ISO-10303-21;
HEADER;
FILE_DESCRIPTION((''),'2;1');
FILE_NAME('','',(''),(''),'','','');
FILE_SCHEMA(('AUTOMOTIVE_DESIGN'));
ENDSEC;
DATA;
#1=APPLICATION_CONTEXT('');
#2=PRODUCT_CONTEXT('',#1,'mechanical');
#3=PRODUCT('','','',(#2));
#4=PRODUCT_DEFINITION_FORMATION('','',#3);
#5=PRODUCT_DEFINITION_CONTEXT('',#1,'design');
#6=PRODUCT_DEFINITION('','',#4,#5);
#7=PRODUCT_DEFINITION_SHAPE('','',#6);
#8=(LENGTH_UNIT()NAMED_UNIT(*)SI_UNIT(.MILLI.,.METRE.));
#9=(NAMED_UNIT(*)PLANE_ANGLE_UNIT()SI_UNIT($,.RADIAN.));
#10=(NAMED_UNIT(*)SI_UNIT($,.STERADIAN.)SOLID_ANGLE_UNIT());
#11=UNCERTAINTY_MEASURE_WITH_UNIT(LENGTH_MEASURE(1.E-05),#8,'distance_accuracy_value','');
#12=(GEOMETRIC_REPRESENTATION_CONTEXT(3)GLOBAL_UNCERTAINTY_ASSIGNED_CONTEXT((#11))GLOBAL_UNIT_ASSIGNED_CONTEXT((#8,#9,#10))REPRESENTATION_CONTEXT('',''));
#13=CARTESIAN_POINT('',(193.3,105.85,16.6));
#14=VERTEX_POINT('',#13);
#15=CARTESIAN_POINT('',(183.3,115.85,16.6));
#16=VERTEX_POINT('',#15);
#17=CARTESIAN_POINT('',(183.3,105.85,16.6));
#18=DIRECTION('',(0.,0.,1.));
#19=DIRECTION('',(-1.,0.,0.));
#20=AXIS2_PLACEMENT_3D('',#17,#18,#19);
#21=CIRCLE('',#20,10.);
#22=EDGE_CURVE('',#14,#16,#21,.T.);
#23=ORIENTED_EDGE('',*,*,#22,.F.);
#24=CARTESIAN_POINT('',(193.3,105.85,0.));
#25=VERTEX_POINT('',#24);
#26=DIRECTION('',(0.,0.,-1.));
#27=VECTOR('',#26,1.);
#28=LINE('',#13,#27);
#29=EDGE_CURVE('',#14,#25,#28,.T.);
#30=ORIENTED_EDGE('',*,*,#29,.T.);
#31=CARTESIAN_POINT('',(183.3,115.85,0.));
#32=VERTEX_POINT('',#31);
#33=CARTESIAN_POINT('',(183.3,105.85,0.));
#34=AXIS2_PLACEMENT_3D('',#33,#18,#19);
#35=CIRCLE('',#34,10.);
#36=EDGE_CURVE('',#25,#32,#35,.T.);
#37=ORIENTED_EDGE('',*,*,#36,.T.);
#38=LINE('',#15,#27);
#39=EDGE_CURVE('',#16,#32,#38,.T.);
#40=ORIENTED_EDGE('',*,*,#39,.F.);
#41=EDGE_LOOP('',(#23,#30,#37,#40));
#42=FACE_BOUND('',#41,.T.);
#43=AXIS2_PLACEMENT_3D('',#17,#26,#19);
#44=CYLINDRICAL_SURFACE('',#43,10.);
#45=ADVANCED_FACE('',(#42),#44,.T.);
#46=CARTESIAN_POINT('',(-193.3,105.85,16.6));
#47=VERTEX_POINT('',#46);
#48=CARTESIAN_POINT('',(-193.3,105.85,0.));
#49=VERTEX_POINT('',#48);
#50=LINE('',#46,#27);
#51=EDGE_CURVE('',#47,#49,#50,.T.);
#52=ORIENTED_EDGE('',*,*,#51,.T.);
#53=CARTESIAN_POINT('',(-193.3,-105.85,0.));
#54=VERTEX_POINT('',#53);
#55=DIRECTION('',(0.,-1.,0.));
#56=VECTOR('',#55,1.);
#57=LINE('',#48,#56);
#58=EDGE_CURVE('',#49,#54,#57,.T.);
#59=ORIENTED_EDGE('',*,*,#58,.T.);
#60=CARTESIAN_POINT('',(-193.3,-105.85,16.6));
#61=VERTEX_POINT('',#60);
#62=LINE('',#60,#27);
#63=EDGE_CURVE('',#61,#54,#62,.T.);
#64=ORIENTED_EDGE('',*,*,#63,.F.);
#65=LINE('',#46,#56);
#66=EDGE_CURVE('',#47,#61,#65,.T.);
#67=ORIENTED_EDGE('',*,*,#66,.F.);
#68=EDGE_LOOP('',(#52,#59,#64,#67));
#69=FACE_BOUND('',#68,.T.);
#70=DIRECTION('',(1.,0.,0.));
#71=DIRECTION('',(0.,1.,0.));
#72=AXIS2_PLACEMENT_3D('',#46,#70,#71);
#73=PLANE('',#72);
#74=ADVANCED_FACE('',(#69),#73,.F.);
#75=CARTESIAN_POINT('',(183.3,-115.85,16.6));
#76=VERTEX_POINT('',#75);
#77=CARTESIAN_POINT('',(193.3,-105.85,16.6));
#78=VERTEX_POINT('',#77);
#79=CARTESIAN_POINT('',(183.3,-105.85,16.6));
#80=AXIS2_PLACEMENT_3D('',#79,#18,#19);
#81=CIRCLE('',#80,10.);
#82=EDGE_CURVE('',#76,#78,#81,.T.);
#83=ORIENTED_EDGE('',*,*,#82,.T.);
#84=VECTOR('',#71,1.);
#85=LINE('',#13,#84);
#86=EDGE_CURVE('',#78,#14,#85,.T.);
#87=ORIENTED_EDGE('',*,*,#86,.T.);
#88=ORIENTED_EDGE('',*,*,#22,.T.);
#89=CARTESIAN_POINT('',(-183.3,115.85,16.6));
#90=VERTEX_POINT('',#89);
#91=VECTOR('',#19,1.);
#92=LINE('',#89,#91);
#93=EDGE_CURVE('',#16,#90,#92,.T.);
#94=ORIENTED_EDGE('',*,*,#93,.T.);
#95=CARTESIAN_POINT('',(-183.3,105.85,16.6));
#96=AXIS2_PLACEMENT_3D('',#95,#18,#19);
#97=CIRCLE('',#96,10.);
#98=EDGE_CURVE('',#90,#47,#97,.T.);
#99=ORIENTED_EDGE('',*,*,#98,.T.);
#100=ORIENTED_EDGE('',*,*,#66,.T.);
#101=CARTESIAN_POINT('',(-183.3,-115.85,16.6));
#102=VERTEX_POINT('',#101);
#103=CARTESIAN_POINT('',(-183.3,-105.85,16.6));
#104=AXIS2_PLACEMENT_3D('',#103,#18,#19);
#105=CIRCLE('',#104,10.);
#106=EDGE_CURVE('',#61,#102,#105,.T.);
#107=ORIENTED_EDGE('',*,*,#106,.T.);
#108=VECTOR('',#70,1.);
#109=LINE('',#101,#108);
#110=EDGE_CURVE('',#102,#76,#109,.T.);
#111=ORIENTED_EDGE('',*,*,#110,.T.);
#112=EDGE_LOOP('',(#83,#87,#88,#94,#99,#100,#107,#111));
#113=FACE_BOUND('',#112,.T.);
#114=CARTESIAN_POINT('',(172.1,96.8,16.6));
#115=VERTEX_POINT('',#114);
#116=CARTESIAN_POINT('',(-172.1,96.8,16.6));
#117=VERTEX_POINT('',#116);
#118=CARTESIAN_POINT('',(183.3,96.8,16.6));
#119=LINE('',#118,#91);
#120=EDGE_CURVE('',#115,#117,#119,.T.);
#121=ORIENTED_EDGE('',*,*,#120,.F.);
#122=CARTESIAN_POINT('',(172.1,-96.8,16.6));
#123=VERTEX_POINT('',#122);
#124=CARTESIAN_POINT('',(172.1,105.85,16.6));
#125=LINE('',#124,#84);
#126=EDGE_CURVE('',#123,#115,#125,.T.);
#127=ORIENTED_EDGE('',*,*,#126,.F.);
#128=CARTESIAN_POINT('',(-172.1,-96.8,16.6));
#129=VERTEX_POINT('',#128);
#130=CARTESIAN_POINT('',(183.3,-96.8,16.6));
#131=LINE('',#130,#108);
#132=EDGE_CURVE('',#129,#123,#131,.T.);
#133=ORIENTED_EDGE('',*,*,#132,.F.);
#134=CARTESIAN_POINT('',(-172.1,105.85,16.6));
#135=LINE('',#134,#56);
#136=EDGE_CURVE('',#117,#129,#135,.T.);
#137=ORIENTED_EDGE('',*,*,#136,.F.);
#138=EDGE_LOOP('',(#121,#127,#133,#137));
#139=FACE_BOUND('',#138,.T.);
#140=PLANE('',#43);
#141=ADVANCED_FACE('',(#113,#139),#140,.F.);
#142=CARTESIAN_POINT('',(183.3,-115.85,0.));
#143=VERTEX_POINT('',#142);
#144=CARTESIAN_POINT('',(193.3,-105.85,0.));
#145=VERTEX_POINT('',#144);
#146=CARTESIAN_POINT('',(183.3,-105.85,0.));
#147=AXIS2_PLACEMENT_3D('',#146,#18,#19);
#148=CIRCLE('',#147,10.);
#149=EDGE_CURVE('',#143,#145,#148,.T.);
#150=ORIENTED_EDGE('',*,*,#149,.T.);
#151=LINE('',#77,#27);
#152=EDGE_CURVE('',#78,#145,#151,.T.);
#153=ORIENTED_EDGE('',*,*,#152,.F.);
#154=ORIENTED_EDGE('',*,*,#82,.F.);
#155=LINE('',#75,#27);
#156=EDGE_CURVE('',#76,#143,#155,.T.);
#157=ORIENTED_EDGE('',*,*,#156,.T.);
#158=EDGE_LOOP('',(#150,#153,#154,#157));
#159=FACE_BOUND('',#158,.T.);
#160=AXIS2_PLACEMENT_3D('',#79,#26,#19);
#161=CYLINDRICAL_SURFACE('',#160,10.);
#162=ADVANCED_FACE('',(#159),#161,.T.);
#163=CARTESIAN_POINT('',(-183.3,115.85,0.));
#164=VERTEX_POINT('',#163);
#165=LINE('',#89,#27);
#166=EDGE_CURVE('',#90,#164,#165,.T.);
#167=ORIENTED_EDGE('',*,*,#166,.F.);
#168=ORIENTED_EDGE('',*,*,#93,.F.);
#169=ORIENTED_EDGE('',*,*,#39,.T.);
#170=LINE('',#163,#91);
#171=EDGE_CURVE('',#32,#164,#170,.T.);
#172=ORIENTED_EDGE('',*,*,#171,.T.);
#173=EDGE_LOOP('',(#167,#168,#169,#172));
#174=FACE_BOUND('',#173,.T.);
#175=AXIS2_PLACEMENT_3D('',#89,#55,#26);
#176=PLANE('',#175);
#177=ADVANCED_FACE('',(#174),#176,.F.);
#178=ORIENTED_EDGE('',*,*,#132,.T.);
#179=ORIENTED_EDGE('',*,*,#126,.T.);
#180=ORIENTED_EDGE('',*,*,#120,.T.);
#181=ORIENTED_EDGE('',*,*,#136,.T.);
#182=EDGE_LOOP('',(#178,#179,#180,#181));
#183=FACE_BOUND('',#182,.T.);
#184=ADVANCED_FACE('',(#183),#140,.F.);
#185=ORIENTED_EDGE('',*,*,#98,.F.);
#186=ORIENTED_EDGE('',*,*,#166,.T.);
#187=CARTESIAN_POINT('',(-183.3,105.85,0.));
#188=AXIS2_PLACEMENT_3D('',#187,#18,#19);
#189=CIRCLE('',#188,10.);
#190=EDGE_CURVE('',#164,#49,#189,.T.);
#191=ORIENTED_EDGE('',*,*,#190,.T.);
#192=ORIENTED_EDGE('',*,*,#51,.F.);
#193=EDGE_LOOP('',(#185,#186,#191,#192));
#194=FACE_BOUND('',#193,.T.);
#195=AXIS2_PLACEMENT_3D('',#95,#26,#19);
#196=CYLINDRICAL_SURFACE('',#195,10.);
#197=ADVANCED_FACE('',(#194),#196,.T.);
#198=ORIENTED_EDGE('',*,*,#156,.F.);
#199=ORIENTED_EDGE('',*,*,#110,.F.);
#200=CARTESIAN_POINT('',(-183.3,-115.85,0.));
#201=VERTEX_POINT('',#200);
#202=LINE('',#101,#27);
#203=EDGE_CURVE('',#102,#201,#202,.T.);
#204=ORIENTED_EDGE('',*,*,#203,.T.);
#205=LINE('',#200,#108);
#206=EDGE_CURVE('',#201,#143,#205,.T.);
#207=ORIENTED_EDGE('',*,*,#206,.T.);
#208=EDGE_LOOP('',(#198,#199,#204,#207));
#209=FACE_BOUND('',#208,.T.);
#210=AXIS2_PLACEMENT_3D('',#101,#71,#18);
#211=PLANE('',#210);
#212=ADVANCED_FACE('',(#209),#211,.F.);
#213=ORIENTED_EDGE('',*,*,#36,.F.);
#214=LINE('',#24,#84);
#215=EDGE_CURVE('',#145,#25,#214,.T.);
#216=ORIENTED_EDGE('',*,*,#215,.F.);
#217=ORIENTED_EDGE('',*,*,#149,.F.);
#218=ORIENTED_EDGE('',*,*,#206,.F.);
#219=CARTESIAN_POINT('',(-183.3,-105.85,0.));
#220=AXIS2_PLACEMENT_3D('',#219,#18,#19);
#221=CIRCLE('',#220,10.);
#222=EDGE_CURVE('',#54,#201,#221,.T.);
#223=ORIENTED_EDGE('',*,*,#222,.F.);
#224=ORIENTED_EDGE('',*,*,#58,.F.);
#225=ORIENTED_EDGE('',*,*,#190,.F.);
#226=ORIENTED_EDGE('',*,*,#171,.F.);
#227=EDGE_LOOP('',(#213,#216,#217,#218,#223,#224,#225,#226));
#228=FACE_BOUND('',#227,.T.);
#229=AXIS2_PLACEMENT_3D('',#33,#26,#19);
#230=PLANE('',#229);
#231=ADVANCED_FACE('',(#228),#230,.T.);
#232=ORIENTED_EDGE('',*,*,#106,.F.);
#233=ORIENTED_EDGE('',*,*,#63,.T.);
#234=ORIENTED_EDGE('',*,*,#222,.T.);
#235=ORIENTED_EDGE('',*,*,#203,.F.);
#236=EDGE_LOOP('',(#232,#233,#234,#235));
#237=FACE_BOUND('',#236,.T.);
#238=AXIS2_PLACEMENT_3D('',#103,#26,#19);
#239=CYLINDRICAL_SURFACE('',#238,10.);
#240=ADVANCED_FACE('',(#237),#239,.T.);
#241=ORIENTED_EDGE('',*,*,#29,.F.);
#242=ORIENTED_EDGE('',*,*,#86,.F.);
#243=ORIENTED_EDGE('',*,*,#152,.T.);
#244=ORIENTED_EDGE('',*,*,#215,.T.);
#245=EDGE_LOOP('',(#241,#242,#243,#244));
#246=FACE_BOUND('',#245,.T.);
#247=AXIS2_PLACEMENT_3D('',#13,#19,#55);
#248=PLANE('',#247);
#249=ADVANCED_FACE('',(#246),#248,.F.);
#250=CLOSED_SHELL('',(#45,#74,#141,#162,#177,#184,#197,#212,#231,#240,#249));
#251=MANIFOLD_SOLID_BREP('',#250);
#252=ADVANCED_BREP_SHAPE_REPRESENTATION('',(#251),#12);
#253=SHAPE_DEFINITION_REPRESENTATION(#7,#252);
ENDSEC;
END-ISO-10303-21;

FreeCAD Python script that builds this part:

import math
import FreeCAD as App
import Part
import Sketcher

V = App.Vector
Q = App.Units.Quantity

doc = App.newDocument("Part")
body = doc.addObject("PartDesign::Body", "Body")

# Sketch on XY plane
sketch1 = doc.addObject("Sketcher::SketchObject", "Sketch")
body.addObject(sketch1)
sketch1.AttachmentSupport = (doc.XY_Plane, [""])
sketch1.MapMode = "FlatFace"
sketch1.addGeometry([
    Part.LineSegment(V(183.3, 115.85, 0), V(-183.3, 115.85, 0)),  # 0
    Part.ArcOfCircle(Part.Circle(V(-183.3, 105.85, 0), V(0, 0, 1), 10), math.radians(90), math.radians(180)),  # 1
    Part.LineSegment(V(-193.3, 105.85, 0), V(-193.3, -105.85, 0)),  # 2
    Part.ArcOfCircle(Part.Circle(V(-183.3, -105.85, 0), V(0, 0, 1), 10), math.radians(180), math.radians(270)),  # 3
    Part.LineSegment(V(-183.3, -115.85, 0), V(183.3, -115.85, 0)),  # 4
    Part.ArcOfCircle(Part.Circle(V(183.3, -105.85, 0), V(0, 0, 1), 10), math.radians(-90), math.radians(0)),  # 5
    Part.LineSegment(V(193.3, -105.85, 0), V(193.3, 105.85, 0)),  # 6
    Part.ArcOfCircle(Part.Circle(V(183.3, 105.85, 0), V(0, 0, 1), 10), math.radians(0), math.radians(90)),  # 7
], False)
sketch1.addConstraint([
    Sketcher.Constraint("Tangent", 0, 2, 1, 1),
    Sketcher.Constraint("Tangent", 1, 2, 2, 1),
    Sketcher.Constraint("Tangent", 2, 2, 3, 1),
    Sketcher.Constraint("Tangent", 3, 2, 4, 1),
    Sketcher.Constraint("Tangent", 4, 2, 5, 1),
    Sketcher.Constraint("Tangent", 5, 2, 6, 1),
    Sketcher.Constraint("Tangent", 6, 2, 7, 1),
    Sketcher.Constraint("Tangent", 7, 2, 0, 1),
    Sketcher.Constraint("Horizontal", 0),
    Sketcher.Constraint("Vertical", 2),
    Sketcher.Constraint("Horizontal", 4),
    Sketcher.Constraint("Vertical", 6),
    Sketcher.Constraint("Equal", 1, 3),
    Sketcher.Constraint("Equal", 3, 5),
    Sketcher.Constraint("Equal", 5, 7),
    Sketcher.Constraint("Symmetric", 1, 3, 5, 3, -1, 1),
    Sketcher.Constraint("Radius", 1, Q("10 mm")),
    Sketcher.Constraint("DistanceX", 0, 2, 0, 1, Q("366.6 mm")),
    Sketcher.Constraint("DistanceY", 2, 2, 2, 1, Q("211.7 mm")),
])
pad1 = doc.addObject("PartDesign::Pad", "Pad")
body.addObject(pad1)
pad1.Profile = sketch1
pad1.Length = 16.6

doc.recompute()
